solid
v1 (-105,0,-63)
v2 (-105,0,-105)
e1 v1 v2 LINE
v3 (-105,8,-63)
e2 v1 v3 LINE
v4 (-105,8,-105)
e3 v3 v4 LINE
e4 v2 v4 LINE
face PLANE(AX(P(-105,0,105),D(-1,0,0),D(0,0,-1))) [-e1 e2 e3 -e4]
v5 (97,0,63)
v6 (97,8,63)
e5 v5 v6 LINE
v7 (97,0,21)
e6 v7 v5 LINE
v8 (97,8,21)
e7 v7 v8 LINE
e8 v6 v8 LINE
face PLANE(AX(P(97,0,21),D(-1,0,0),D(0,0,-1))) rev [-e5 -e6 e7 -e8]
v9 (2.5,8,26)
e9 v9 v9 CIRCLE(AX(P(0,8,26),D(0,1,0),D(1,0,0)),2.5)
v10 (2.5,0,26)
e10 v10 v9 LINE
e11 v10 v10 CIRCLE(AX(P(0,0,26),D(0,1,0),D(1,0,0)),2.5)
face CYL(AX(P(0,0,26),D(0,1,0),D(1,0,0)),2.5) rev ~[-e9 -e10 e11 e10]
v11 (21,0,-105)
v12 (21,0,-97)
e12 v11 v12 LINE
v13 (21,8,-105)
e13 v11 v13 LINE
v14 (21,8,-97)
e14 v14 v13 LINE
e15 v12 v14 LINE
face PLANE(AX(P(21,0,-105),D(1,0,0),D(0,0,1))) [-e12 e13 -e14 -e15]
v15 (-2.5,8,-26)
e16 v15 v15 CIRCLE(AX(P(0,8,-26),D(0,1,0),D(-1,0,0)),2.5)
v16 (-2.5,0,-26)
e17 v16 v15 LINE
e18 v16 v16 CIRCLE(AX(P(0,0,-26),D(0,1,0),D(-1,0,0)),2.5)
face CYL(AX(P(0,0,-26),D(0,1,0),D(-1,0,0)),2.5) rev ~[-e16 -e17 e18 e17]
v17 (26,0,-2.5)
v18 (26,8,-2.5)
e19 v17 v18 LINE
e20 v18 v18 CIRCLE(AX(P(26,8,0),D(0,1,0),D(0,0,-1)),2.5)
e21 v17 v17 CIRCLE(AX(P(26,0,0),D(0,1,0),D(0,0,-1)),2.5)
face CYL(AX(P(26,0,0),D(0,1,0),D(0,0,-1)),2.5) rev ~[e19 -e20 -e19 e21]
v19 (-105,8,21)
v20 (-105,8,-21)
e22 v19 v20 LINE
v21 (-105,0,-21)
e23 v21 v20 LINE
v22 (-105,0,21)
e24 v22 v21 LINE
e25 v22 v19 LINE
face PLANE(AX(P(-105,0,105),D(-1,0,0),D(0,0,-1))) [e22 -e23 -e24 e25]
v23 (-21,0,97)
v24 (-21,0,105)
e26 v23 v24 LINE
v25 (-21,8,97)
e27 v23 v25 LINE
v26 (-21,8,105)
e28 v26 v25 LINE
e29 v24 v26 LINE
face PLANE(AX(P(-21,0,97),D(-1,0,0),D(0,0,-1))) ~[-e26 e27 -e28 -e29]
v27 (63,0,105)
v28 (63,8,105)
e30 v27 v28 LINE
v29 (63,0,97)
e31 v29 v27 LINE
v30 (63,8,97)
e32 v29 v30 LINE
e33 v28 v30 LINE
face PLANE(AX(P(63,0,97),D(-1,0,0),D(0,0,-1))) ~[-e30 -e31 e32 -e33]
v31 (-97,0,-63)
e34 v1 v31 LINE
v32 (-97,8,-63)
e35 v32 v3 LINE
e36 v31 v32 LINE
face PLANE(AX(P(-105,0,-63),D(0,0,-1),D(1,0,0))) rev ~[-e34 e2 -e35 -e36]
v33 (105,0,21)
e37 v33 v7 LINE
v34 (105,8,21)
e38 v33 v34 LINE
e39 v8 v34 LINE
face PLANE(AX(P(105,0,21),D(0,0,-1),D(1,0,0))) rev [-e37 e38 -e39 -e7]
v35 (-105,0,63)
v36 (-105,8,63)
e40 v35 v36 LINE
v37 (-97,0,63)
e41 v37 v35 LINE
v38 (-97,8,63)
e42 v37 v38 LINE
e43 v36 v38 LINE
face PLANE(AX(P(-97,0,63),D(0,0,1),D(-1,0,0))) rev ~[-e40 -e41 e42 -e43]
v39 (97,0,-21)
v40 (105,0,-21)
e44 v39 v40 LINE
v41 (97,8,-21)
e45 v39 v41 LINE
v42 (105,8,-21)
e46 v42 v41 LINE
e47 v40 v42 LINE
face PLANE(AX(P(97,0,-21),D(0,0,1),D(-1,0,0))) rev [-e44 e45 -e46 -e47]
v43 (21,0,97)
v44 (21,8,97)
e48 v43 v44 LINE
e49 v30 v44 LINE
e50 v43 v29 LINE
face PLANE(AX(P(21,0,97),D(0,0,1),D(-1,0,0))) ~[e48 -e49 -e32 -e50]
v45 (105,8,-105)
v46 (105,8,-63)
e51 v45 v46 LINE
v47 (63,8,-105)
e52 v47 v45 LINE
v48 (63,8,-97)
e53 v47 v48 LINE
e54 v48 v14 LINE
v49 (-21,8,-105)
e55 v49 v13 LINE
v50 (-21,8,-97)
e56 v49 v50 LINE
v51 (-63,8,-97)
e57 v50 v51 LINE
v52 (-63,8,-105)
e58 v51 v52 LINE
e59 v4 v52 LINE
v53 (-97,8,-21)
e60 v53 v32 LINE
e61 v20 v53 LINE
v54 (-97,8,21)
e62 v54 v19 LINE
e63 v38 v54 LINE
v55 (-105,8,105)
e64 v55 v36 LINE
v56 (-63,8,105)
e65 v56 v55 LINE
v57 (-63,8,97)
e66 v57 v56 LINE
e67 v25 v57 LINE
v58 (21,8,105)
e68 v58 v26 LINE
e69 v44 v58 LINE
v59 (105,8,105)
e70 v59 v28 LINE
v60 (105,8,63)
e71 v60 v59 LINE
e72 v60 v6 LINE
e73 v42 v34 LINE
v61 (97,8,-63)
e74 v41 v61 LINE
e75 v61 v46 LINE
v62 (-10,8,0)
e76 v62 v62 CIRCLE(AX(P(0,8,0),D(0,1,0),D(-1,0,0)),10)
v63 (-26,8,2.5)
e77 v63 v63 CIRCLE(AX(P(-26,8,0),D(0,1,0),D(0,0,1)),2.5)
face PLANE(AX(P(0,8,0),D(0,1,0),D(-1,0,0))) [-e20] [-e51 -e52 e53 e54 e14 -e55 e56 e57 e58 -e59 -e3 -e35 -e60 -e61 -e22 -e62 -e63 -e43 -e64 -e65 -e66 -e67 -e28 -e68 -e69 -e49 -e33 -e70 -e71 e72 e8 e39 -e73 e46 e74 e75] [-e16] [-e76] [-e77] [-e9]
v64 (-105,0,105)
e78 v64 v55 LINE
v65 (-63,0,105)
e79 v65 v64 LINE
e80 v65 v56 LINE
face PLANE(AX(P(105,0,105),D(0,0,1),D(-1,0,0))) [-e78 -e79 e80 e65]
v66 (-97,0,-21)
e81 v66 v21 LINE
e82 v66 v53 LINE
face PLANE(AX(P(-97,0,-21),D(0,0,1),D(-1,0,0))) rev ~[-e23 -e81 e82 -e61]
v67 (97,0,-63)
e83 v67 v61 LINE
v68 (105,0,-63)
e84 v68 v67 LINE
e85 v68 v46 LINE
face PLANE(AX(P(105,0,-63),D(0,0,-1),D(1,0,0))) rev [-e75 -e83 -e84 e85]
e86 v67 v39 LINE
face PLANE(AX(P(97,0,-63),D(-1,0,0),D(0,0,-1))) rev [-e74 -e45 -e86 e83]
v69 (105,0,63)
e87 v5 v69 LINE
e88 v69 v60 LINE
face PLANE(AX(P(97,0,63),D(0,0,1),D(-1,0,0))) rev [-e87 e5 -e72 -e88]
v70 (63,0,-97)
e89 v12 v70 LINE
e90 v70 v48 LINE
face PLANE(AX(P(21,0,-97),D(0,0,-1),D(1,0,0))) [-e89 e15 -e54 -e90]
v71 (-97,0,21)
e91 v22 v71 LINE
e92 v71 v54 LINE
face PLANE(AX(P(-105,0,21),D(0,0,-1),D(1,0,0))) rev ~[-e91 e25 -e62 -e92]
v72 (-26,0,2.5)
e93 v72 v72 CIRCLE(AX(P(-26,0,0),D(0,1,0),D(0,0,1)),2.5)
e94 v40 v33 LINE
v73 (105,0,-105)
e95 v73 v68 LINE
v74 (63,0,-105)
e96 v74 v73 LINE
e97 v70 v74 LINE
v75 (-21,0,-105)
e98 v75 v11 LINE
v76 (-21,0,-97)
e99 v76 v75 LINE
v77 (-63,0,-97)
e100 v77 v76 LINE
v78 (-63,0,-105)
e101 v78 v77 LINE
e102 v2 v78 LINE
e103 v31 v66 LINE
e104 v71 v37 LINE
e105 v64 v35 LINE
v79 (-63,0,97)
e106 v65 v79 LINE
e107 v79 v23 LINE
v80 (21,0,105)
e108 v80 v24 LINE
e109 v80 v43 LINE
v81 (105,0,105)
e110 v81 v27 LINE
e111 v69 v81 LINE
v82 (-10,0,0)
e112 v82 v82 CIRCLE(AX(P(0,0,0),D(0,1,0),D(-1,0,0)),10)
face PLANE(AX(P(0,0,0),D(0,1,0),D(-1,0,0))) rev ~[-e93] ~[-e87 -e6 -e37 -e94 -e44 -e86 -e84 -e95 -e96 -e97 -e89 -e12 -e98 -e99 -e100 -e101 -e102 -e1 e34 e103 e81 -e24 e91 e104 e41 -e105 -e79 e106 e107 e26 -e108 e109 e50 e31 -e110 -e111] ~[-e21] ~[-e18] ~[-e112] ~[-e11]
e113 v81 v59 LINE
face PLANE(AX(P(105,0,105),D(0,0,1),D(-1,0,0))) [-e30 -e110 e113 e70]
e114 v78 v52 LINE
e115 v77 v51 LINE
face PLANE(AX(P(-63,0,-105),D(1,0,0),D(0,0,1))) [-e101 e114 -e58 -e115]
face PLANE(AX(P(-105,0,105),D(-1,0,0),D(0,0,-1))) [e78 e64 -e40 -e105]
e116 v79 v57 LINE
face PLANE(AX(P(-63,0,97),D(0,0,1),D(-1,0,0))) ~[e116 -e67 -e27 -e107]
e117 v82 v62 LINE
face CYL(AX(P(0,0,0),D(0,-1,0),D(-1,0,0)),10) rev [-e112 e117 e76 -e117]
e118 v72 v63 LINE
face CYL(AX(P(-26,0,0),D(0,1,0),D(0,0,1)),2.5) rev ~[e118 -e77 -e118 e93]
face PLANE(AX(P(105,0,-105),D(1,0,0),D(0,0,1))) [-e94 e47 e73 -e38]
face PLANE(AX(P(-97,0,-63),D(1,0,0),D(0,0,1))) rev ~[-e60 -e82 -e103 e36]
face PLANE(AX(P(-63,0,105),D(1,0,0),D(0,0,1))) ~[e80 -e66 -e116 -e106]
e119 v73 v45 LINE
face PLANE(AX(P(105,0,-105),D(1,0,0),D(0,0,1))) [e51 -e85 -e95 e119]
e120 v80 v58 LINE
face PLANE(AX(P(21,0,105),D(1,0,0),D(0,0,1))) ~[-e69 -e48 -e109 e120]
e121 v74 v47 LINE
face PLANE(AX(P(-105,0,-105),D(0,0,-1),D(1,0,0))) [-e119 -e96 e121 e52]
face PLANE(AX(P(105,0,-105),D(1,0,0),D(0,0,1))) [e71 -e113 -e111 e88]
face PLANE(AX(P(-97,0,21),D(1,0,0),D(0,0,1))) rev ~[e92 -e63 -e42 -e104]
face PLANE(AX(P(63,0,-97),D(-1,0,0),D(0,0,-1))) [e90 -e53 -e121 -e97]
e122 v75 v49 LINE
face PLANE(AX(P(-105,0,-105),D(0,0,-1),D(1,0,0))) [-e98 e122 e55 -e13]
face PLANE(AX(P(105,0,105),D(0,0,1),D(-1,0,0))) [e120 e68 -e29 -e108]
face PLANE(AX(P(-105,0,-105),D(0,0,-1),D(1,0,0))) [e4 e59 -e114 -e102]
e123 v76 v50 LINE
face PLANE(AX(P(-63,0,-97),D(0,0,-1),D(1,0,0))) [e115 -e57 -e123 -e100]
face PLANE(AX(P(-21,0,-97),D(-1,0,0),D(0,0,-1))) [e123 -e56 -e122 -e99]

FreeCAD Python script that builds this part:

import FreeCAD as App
import Part
import Sketcher


def add_polygon(sketch, points):
    """Adds a closed chain of lines whose ends are joined by coincident constraints."""
    first, n = sketch.GeometryCount, len(points)
    for a, b in zip(points, points[1:] + points[:1]):
        sketch.addGeometry(Part.LineSegment(App.Vector(*a, 0), App.Vector(*b, 0)), False)
    for i in range(n):
        sketch.addConstraint(Sketcher.Constraint("Coincident", first + i, 2, first + (i + 1) % n, 1))

doc = App.newDocument("Part")
body = doc.addObject("PartDesign::Body", "Body")

# Sketch on XZ plane
sketch1 = body.newObject("Sketcher::SketchObject", "Sketch")
sketch1.AttachmentSupport = (doc.getObject("XZ_Plane"), [""])
sketch1.MapMode = "FlatFace"
add_polygon(sketch1, [(-105, 105), (105, 105), (105, -105), (-105, -105)])  # lines 0-3
sketch1.addGeometry(Part.Circle(App.Vector(0, 0, 0), App.Vector(0, 0, 1), 10), False)  # 4
sketch1.addConstraint(Sketcher.Constraint("Horizontal", 0))
sketch1.addConstraint(Sketcher.Constraint("Vertical", 1))
sketch1.addConstraint(Sketcher.Constraint("Horizontal", 2))
sketch1.addConstraint(Sketcher.Constraint("Vertical", 3))
sketch1.addConstraint(Sketcher.Constraint("Coincident", 4, 3, -1, 1))
sketch1.addConstraint(Sketcher.Constraint("Symmetric", 0, 2, 2, 2, -1, 1))
sketch1.addConstraint(Sketcher.Constraint("Equal", 2, 1))
sketch1.addConstraint(Sketcher.Constraint("Diameter", 4, 20.0))
sketch1.addConstraint(Sketcher.Constraint("DistanceX", 0, 1, 0, 2, 210.0))
pad1 = body.newObject("PartDesign::Pad", "Pad")
pad1.Profile = sketch1
pad1.Length = 8
pad1.Reversed = True

# Sketch on XZ plane
sketch2 = body.newObject("Sketcher::SketchObject", "Sketch001")
sketch2.AttachmentSupport = (doc.getObject("XZ_Plane"), [""])
sketch2.MapMode = "FlatFace"
sketch2.addGeometry(Part.Circle(App.Vector(26, 0, 0), App.Vector(0, 0, 1), 2.5), False)
sketch2.addConstraint(Sketcher.Constraint("PointOnObject", 0, 3, -1))
sketch2.addConstraint(Sketcher.Constraint("Diameter", 0, 5.0))
sketch2.addConstraint(Sketcher.Constraint("DistanceX", -1, 1, 0, 3, 26.0))
doc.recompute()
hole = body.newObject("PartDesign::Hole", "Hole")
hole.Profile = sketch2
hole.ThreadType = "None"
hole.Diameter = 5
hole.DepthType = "Dimension"
hole.Depth = 8
hole.DrillPoint = "Angled"
hole.DrillPointAngle = 118
doc.recompute()

polarpattern = body.newObject("PartDesign::PolarPattern", "PolarPattern")
polarpattern.Originals = [hole]
polarpattern.Axis = (doc.getObject("Y_Axis"), [""])
polarpattern.Angle = 360
polarpattern.Occurrences = 4
body.Tip = polarpattern

# Sketch on XZ plane
sketch3 = body.newObject("Sketcher::SketchObject", "Sketch002")
sketch3.AttachmentSupport = (doc.getObject("XZ_Plane"), [""])
sketch3.MapMode = "FlatFace"
add_polygon(sketch3, [(-97, 63), (-105, 63), (-105, 21), (-97, 21)])  # lines 0-3
add_polygon(sketch3, [(-105, -63), (-97, -63), (-97, -21), (-105, -21)])  # lines 4-7
sketch3.addConstraint(Sketcher.Constraint("Horizontal", 0))
sketch3.addConstraint(Sketcher.Constraint("Vertical", 1))
sketch3.addConstraint(Sketcher.Constraint("Horizontal", 2))
sketch3.addConstraint(Sketcher.Constraint("Vertical", 3))
sketch3.addConstraint(Sketcher.Constraint("Horizontal", 4))
sketch3.addConstraint(Sketcher.Constraint("Vertical", 5))
sketch3.addConstraint(Sketcher.Constraint("Horizontal", 6))
sketch3.addConstraint(Sketcher.Constraint("Vertical", 7))
sketch3.addConstraint(Sketcher.Constraint("Symmetric", 3, 2, 4, 2, -1))
sketch3.addConstraint(Sketcher.Constraint("Symmetric", 1, 2, 6, 2, -1))
sketch3.addConstraint(Sketcher.Constraint("DistanceX", 0, 2, 0, 1, 8.0))
sketch3.addConstraint(Sketcher.Constraint("DistanceY", 1, 2, 1, 1, 42.0))
sketch3.addConstraint(Sketcher.Constraint("DistanceX", 0, 2, -1, 1, 105.0))
sketch3.addConstraint(Sketcher.Constraint("DistanceY", -1, 1, 0, 2, 63.0))
pocket1 = body.newObject("PartDesign::Pocket", "Pocket")
pocket1.Profile = sketch3
pocket1.Type = "ThroughAll"

# Sketch on XZ plane
sketch4 = body.newObject("Sketcher::SketchObject", "Sketch003")
sketch4.AttachmentSupport = (doc.getObject("XZ_Plane"), [""])
sketch4.MapMode = "FlatFace"
add_polygon(sketch4, [(21, -105), (63, -105), (63, -97), (21, -97)])  # lines 0-3
add_polygon(sketch4, [(-63, -97), (-63, -105), (-21, -105), (-21, -97)])  # lines 4-7
sketch4.addConstraint(Sketcher.Constraint("Horizontal", 0))
sketch4.addConstraint(Sketcher.Constraint("Vertical", 1))
sketch4.addConstraint(Sketcher.Constraint("Horizontal", 2))
sketch4.addConstraint(Sketcher.Constraint("Vertical", 3))
sketch4.addConstraint(Sketcher.Constraint("Vertical", 4))
sketch4.addConstraint(Sketcher.Constraint("Horizontal", 5))
sketch4.addConstraint(Sketcher.Constraint("Vertical", 6))
sketch4.addConstraint(Sketcher.Constraint("Horizontal", 7))
sketch4.addConstraint(Sketcher.Constraint("Symmetric", 0, 2, 4, 2, -2))
sketch4.addConstraint(Sketcher.Constraint("Symmetric", 2, 2, 6, 2, -2))
sketch4.addConstraint(Sketcher.Constraint("DistanceY", 1, 1, 1, 2, 8.0))
sketch4.addConstraint(Sketcher.Constraint("DistanceX", 0, 1, 0, 2, 42.0))
sketch4.addConstraint(Sketcher.Constraint("DistanceX", -1, 1, 0, 2, 63.0))
sketch4.addConstraint(Sketcher.Constraint("DistanceY", 0, 2, -1, 1, 105.0))
pocket2 = body.newObject("PartDesign::Pocket", "Pocket001")
pocket2.Profile = sketch4
pocket2.Type = "ThroughAll"
doc.recompute()

mirrored = body.newObject("PartDesign::Mirrored", "Mirrored")
mirrored.Originals = [pocket1]
mirrored.MirrorPlane = (doc.getObject("YZ_Plane"), [""])
body.Tip = mirrored
doc.recompute()

mirrored2 = body.newObject("PartDesign::Mirrored", "Mirrored001")
mirrored2.Originals = [pocket2]
mirrored2.MirrorPlane = (doc.getObject("XY_Plane"), [""])
body.Tip = mirrored2

doc.recompute()
